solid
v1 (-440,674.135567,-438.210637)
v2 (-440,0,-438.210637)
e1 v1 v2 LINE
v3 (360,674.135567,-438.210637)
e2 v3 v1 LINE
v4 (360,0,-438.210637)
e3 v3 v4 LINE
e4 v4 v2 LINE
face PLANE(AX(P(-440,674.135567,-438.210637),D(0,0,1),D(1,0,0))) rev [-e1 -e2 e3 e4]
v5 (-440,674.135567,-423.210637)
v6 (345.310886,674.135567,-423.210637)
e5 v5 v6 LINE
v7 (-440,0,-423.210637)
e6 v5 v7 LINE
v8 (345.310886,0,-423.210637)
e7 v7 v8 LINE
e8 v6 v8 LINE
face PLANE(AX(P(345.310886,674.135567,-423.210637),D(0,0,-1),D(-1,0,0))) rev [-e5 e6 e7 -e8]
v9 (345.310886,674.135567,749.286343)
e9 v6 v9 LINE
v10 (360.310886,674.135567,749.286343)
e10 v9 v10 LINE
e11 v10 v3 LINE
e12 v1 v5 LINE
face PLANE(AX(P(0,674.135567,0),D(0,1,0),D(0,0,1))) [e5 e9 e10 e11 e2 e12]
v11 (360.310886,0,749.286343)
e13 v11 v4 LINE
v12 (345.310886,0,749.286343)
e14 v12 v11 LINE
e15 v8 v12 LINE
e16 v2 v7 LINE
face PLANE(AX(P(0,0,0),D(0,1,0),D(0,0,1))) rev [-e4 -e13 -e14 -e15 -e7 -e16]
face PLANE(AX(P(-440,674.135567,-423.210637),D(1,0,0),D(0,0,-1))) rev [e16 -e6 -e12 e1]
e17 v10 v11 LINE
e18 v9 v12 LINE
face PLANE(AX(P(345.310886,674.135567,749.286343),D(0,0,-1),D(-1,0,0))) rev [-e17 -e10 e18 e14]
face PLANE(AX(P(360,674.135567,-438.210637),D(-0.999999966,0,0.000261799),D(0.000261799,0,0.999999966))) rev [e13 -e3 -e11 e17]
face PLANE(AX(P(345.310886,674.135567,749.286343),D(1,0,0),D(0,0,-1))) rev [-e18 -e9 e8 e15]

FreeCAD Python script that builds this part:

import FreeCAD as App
import Part
import Sketcher
from FreeCAD import Vector
Q = App.Units.Quantity

doc = App.newDocument("Part")
params = doc.addObject("Spreadsheet::Sheet", "Params")
for row, (alias, value) in enumerate([
    ("sketch1_width", "15 mm"),
    ("sketch1_width2", "800 mm"),
    ("pad1_length", "674.135567 mm"),
], start=1):
    params.set(f"A{row}", alias)
    params.set(f"B{row}", "=" + value)
    params.setAlias(f"B{row}", alias)

body = doc.addObject("PartDesign::Body", "Body")

# Sketch on XZ plane
sketch1 = body.newObject("Sketcher::SketchObject", "Sketch")
sketch1.AttachmentSupport = (doc.getObject("XZ_Plane"), [""])
sketch1.MapMode = "FlatFace"
sketch1.addGeometry([
    Part.LineSegment(Vector(345.310886, -423.210637, 0), Vector(345.310886, 749.286343, 0)),  # 0
    Part.LineSegment(Vector(345.310886, 749.286343, 0), Vector(360.310886, 749.286343, 0)),  # 1
    Part.LineSegment(Vector(360.310886, 749.286343, 0), Vector(360, -438.210637, 0)),  # 2
    Part.LineSegment(Vector(360, -438.210637, 0), Vector(-440, -438.210637, 0)),  # 3
    Part.LineSegment(Vector(-440, -438.210637, 0), Vector(-440, -423.210637, 0)),  # 4
    Part.LineSegment(Vector(-440, -423.210637, 0), Vector(345.310886, -423.210637, 0)),  # 5
], False)
sketch1.addConstraint([
    Sketcher.Constraint("Coincident", 0, 2, 1, 1),
    Sketcher.Constraint("Coincident", 1, 2, 2, 1),
    Sketcher.Constraint("Coincident", 2, 2, 3, 1),
    Sketcher.Constraint("Coincident", 3, 2, 4, 1),
    Sketcher.Constraint("Coincident", 4, 2, 5, 1),
    Sketcher.Constraint("Coincident", 5, 2, 0, 1),
    Sketcher.Constraint("Vertical", 0),
    Sketcher.Constraint("Horizontal", 1),
    Sketcher.Constraint("Horizontal", 3),
    Sketcher.Constraint("Vertical", 4),
    Sketcher.Constraint("Horizontal", 5),
    Sketcher.Constraint("Equal", 1, 4),
    Sketcher.Constraint("DistanceX", 1, 1, 1, 2, Q("15 mm")),
    Sketcher.Constraint("DistanceX", 3, 2, 3, 1, Q("800 mm")),
    Sketcher.Constraint("DistanceX", -1, 1, 2, 2, Q("360 mm")),
    Sketcher.Constraint("DistanceY", 0, 1, 0, 2, Q("1172.49698 mm")),
    Sketcher.Constraint("DistanceX", 5, 1, 5, 2, Q("785.310886 mm")),
    Sketcher.Constraint("DistanceY", -1, 1, 0, 2, Q("749.286343 mm")),
])
sketch1.setExpression("Constraints[12]", "Params.sketch1_width")
sketch1.setExpression("Constraints[13]", "Params.sketch1_width2")
pad1 = body.newObject("PartDesign::Pad", "Pad")
pad1.Profile = sketch1
pad1.setExpression("Length", "Params.pad1_length")
pad1.Reversed = True

doc.recompute()
